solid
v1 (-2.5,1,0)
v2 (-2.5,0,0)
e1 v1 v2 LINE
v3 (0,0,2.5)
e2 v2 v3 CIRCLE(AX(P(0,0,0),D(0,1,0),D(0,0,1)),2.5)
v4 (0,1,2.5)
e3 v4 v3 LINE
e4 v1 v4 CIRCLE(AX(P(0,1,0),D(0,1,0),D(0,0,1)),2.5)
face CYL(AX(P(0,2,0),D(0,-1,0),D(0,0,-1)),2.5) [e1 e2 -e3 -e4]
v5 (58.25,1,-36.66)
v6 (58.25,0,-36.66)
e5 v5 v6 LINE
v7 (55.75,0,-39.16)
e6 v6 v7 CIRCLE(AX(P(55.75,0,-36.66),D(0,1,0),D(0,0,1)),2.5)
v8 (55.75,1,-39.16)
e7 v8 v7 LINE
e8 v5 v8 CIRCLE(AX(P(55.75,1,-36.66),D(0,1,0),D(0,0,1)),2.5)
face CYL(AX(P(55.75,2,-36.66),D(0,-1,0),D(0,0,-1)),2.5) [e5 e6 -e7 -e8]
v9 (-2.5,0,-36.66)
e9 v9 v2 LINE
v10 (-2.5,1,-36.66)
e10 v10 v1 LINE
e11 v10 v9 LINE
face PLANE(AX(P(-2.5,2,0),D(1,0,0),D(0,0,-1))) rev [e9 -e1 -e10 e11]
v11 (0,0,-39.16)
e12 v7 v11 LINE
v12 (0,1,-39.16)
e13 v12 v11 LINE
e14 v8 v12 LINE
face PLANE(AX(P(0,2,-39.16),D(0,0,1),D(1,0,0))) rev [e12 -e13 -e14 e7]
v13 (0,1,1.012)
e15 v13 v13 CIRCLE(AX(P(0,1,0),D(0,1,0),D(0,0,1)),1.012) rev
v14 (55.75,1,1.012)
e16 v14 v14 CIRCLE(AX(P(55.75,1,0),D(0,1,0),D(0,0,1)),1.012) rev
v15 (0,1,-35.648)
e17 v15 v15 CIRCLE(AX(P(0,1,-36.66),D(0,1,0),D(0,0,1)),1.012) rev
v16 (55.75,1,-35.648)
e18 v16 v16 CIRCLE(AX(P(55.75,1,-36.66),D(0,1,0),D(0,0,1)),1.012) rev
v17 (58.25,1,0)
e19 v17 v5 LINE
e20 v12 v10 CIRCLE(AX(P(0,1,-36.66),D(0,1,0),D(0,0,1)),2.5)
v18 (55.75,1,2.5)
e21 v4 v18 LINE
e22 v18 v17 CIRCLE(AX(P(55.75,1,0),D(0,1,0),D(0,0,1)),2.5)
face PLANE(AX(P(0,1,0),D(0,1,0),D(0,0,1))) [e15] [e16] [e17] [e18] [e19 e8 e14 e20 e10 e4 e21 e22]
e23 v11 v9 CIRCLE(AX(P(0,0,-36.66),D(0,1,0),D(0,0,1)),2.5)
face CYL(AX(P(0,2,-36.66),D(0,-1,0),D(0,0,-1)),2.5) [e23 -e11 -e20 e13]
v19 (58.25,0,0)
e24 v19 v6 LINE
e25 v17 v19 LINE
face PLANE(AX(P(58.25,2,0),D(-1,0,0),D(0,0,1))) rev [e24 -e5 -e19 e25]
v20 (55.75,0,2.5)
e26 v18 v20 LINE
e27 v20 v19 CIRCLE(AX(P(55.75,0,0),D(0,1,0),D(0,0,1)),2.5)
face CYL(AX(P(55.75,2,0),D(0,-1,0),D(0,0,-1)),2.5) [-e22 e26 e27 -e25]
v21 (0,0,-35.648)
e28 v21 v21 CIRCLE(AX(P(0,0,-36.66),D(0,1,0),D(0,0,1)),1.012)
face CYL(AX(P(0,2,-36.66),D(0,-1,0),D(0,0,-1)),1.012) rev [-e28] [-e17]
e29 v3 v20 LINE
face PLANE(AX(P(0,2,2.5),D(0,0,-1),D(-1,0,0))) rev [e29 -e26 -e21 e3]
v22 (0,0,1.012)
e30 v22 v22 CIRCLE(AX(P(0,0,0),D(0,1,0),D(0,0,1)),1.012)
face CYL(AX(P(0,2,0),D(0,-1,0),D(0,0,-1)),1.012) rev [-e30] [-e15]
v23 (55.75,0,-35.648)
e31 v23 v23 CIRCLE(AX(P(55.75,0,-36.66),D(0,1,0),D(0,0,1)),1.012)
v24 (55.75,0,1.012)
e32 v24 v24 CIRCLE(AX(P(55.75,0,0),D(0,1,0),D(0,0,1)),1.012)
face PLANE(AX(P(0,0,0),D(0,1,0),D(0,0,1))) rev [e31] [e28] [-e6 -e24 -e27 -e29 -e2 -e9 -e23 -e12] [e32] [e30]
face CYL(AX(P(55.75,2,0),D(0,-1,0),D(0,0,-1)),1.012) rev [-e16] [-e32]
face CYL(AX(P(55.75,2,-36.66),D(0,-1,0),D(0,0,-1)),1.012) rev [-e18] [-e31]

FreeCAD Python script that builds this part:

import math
import FreeCAD as App
import Part
import Sketcher
Q = App.Units.Quantity


def add_polygon(sketch, points):
    """Adds a closed chain of lines whose ends are joined by coincident constraints."""
    first, n = sketch.GeometryCount, len(points)
    for a, b in zip(points, points[1:] + points[:1]):
        sketch.addGeometry(Part.LineSegment(App.Vector(*a, 0), App.Vector(*b, 0)), False)
    for i in range(n):
        sketch.addConstraint(Sketcher.Constraint("Coincident", first + i, 2, first + (i + 1) % n, 1))

doc = App.newDocument("Part")
body = doc.addObject("PartDesign::Body", "Body")

# Sketch on XZ plane
sketch1 = body.newObject("Sketcher::SketchObject", "Sketch")
sketch1.AttachmentSupport = (doc.getObject("XZ_Plane"), [""])
sketch1.MapMode = "FlatFace"
sketch1.addGeometry(Part.LineSegment(App.Vector(58.25, 0, 0), App.Vector(58.25, -36.66, 0)), False)
sketch1.addGeometry(Part.ArcOfCircle(Part.Circle(App.Vector(55.75, -36.66, 0), App.Vector(0, 0, 1), 2.5), math.radians(0), math.radians(270)), False)
sketch1.addGeometry(Part.LineSegment(App.Vector(55.75, -39.16, 0), App.Vector(0, -39.16, 0)), False)
sketch1.addGeometry(Part.ArcOfCircle(Part.Circle(App.Vector(0, -36.66, 0), App.Vector(0, 0, 1), 2.5), math.radians(-90), math.radians(180)), False)
sketch1.addGeometry(Part.LineSegment(App.Vector(-2.5, -36.66, 0), App.Vector(-2.5, 0, 0)), False)
sketch1.addGeometry(Part.ArcOfCircle(Part.Circle(App.Vector(0, 0, 0), App.Vector(0, 0, 1), 2.5), math.radians(180), math.radians(450)), False)
sketch1.addGeometry(Part.LineSegment(App.Vector(0, 2.5, 0), App.Vector(55.75, 2.5, 0)), False)
sketch1.addGeometry(Part.ArcOfCircle(Part.Circle(App.Vector(55.75, 0, 0), App.Vector(0, 0, 1), 2.5), math.radians(90), math.radians(360)), False)
sketch1.addConstraint(Sketcher.Constraint("Tangent", 0, 2, 1, 1))
sketch1.addConstraint(Sketcher.Constraint("Tangent", 1, 2, 2, 1))
sketch1.addConstraint(Sketcher.Constraint("Tangent", 2, 2, 3, 1))
sketch1.addConstraint(Sketcher.Constraint("Tangent", 3, 2, 4, 1))
sketch1.addConstraint(Sketcher.Constraint("Tangent", 4, 2, 5, 1))
sketch1.addConstraint(Sketcher.Constraint("Tangent", 5, 2, 6, 1))
sketch1.addConstraint(Sketcher.Constraint("Tangent", 6, 2, 7, 1))
sketch1.addConstraint(Sketcher.Constraint("Tangent", 7, 2, 0, 1))
sketch1.addConstraint(Sketcher.Constraint("Vertical", 0))
sketch1.addConstraint(Sketcher.Constraint("Horizontal", 2))
sketch1.addConstraint(Sketcher.Constraint("Vertical", 4))
sketch1.addConstraint(Sketcher.Constraint("Horizontal", 6))
sketch1.addConstraint(Sketcher.Constraint("Coincident", 5, 3, -1, 1))
sketch1.addConstraint(Sketcher.Constraint("Equal", 1, 3))
sketch1.addConstraint(Sketcher.Constraint("Equal", 3, 5))
sketch1.addConstraint(Sketcher.Constraint("Equal", 5, 7))
sketch1.addConstraint(Sketcher.Constraint("Radius", 1, Q("2.5 mm")))
sketch1.addConstraint(Sketcher.Constraint("DistanceX", 2, 2, 2, 1, Q("55.75 mm")))
sketch1.addConstraint(Sketcher.Constraint("DistanceY", 0, 2, 0, 1, Q("36.66 mm")))
pad1 = body.newObject("PartDesign::Pad", "Pad")
pad1.Profile = sketch1
pad1.Length = 2
pad1.Reversed = True

# Sketch on XZ plane
sketch2 = body.newObject("Sketcher::SketchObject", "Sketch001")
sketch2.AttachmentSupport = (doc.getObject("XZ_Plane"), [""])
sketch2.MapMode = "FlatFace"
sketch2.addGeometry(Part.ArcOfCircle(Part.Circle(App.Vector(55.75, 0, 0), App.Vector(0, 0, 1), 2.5), math.radians(0), math.radians(90)), False)
sketch2.addGeometry(Part.ArcOfCircle(Part.Circle(App.Vector(55.75, 0, 0), App.Vector(0, 0, 1), 2.5), math.radians(-90), math.radians(0)), False)
sketch2.addGeometry(Part.ArcOfCircle(Part.Circle(App.Vector(55.75, 0, 0), App.Vector(0, 0, 1), 2.5), math.radians(180), math.radians(270)), False)
sketch2.addGeometry(Part.ArcOfCircle(Part.Circle(App.Vector(55.75, 0, 0), App.Vector(0, 0, 1), 2.5), math.radians(90), math.radians(180)), False)
sketch2.addGeometry(Part.ArcOfCircle(Part.Circle(App.Vector(55.75, 0, 0), App.Vector(0, 0, 1), 1.012), math.radians(0), math.radians(90)), False)
sketch2.addGeometry(Part.ArcOfCircle(Part.Circle(App.Vector(55.75, 0, 0), App.Vector(0, 0, 1), 1.012), math.radians(90), math.radians(180)), False)
sketch2.addGeometry(Part.ArcOfCircle(Part.Circle(App.Vector(55.75, 0, 0), App.Vector(0, 0, 1), 1.012), math.radians(180), math.radians(270)), False)
sketch2.addGeometry(Part.ArcOfCircle(Part.Circle(App.Vector(55.75, 0, 0), App.Vector(0, 0, 1), 1.012), math.radians(-90), math.radians(0)), False)
sketch2.addConstraint(Sketcher.Constraint("Tangent", 0, 1, 1, 2))
sketch2.addConstraint(Sketcher.Constraint("Tangent", 1, 1, 2, 2))
sketch2.addConstraint(Sketcher.Constraint("Tangent", 2, 1, 3, 2))
sketch2.addConstraint(Sketcher.Constraint("Tangent", 3, 1, 0, 2))
sketch2.addConstraint(Sketcher.Constraint("Tangent", 4, 2, 5, 1))
sketch2.addConstraint(Sketcher.Constraint("Tangent", 5, 2, 6, 1))
sketch2.addConstraint(Sketcher.Constraint("Tangent", 6, 2, 7, 1))
sketch2.addConstraint(Sketcher.Constraint("Tangent", 7, 2, 4, 1))
sketch2.addConstraint(Sketcher.Constraint("Coincident", 4, 3, 0, 3))
sketch2.addConstraint(Sketcher.Constraint("Equal", 0, 1))
sketch2.addConstraint(Sketcher.Constraint("Equal", 4, 5))
sketch2.addConstraint(Sketcher.Constraint("Symmetric", 1, 1, 3, 1, -1))
sketch2.addConstraint(Sketcher.Constraint("PointOnObject", 0, 1, -1))
sketch2.addConstraint(Sketcher.Constraint("PointOnObject", 2, 1, -1))
sketch2.addConstraint(Sketcher.Constraint("PointOnObject", 5, 2, -1))
sketch2.addConstraint(Sketcher.Constraint("PointOnObject", 7, 2, -1))
sketch2.addConstraint(Sketcher.Constraint("Vertical", 7, 3, 1, 1))
sketch2.addConstraint(Sketcher.Constraint("Vertical", 3, 1, 4, 2))
sketch2.addConstraint(Sketcher.Constraint("Vertical", 4, 2, 6, 2))
sketch2.addConstraint(Sketcher.Constraint("Radius", 0, Q("2.5 mm")))
sketch2.addConstraint(Sketcher.Constraint("Radius", 4, Q("1.012 mm")))
sketch2.addConstraint(Sketcher.Constraint("DistanceX", -1, 1, 0, 3, Q("55.75 mm")))
pad2 = body.newObject("PartDesign::Pad", "Pad001")
pad2.Profile = sketch2
pad2.Length = 2
pad2.Reversed = True

# Sketch on XZ plane
sketch3 = body.newObject("Sketcher::SketchObject", "Sketch002")
sketch3.AttachmentSupport = (doc.getObject("XZ_Plane"), [""])
sketch3.MapMode = "FlatFace"
sketch3.addGeometry(Part.ArcOfCircle(Part.Circle(App.Vector(0, 0, 0), App.Vector(0, 0, 1), 2.5), math.radians(90), math.radians(180)), False)
sketch3.addGeometry(Part.ArcOfCircle(Part.Circle(App.Vector(0, 0, 0), App.Vector(0, 0, 1), 2.5), math.radians(0), math.radians(90)), False)
sketch3.addGeometry(Part.ArcOfCircle(Part.Circle(App.Vector(0, 0, 0), App.Vector(0, 0, 1), 2.5), math.radians(-90), math.radians(0)), False)
sketch3.addGeometry(Part.ArcOfCircle(Part.Circle(App.Vector(0, 0, 0), App.Vector(0, 0, 1), 2.5), math.radians(180), math.radians(270)), False)
sketch3.addGeometry(Part.ArcOfCircle(Part.Circle(App.Vector(0, 0, 0), App.Vector(0, 0, 1), 1.012), math.radians(90), math.radians(180)), False)
sketch3.addGeometry(Part.ArcOfCircle(Part.Circle(App.Vector(0, 0, 0), App.Vector(0, 0, 1), 1.012), math.radians(180), math.radians(270)), False)
sketch3.addGeometry(Part.ArcOfCircle(Part.Circle(App.Vector(0, 0, 0), App.Vector(0, 0, 1), 1.012), math.radians(-90), math.radians(0)), False)
sketch3.addGeometry(Part.ArcOfCircle(Part.Circle(App.Vector(0, 0, 0), App.Vector(0, 0, 1), 1.012), math.radians(0), math.radians(90)), False)
sketch3.addGeometry(Part.ArcOfCircle(Part.Circle(App.Vector(0, -36.66, 0), App.Vector(0, 0, 1), 2.5), math.radians(90), math.radians(180)), False)
sketch3.addGeometry(Part.ArcOfCircle(Part.Circle(App.Vector(0, -36.66, 0), App.Vector(0, 0, 1), 2.5), math.radians(0), math.radians(90)), False)
sketch3.addGeometry(Part.ArcOfCircle(Part.Circle(App.Vector(0, -36.66, 0), App.Vector(0, 0, 1), 2.5), math.radians(-90), math.radians(0)), False)
sketch3.addGeometry(Part.ArcOfCircle(Part.Circle(App.Vector(0, -36.66, 0), App.Vector(0, 0, 1), 2.5), math.radians(180), math.radians(270)), False)
sketch3.addGeometry(Part.ArcOfCircle(Part.Circle(App.Vector(0, -36.66, 0), App.Vector(0, 0, 1), 1.012), math.radians(90), math.radians(180)), False)
sketch3.addGeometry(Part.ArcOfCircle(Part.Circle(App.Vector(0, -36.66, 0), App.Vector(0, 0, 1), 1.012), math.radians(180), math.radians(270)), False)
sketch3.addGeometry(Part.ArcOfCircle(Part.Circle(App.Vector(0, -36.66, 0), App.Vector(0, 0, 1), 1.012), math.radians(-90), math.radians(0)), False)
sketch3.addGeometry(Part.ArcOfCircle(Part.Circle(App.Vector(0, -36.66, 0), App.Vector(0, 0, 1), 1.012), math.radians(0), math.radians(90)), False)
sketch3.addGeometry(Part.ArcOfCircle(Part.Circle(App.Vector(55.75, -36.66, 0), App.Vector(0, 0, 1), 2.5), math.radians(-90), math.radians(0)), False)
sketch3.addGeometry(Part.ArcOfCircle(Part.Circle(App.Vector(55.75, -36.66, 0), App.Vector(0, 0, 1), 2.5), math.radians(180), math.radians(270)), False)
sketch3.addGeometry(Part.ArcOfCircle(Part.Circle(App.Vector(55.75, -36.66, 0), App.Vector(0, 0, 1), 2.5), math.radians(90), math.radians(180)), False)
sketch3.addGeometry(Part.ArcOfCircle(Part.Circle(App.Vector(55.75, -36.66, 0), App.Vector(0, 0, 1), 2.5), math.radians(0), math.radians(90)), False)
sketch3.addGeometry(Part.ArcOfCircle(Part.Circle(App.Vector(55.75, -36.66, 0), App.Vector(0, 0, 1), 1.012), math.radians(90), math.radians(180)), False)
sketch3.addGeometry(Part.ArcOfCircle(Part.Circle(App.Vector(55.75, -36.66, 0), App.Vector(0, 0, 1), 1.012), math.radians(180), math.radians(270)), False)
sketch3.addGeometry(Part.ArcOfCircle(Part.Circle(App.Vector(55.75, -36.66, 0), App.Vector(0, 0, 1), 1.012), math.radians(-90), math.radians(0)), False)
sketch3.addGeometry(Part.ArcOfCircle(Part.Circle(App.Vector(55.75, -36.66, 0), App.Vector(0, 0, 1), 1.012), math.radians(0), math.radians(90)), False)
sketch3.addConstraint(Sketcher.Constraint("Tangent", 0, 1, 1, 2))
sketch3.addConstraint(Sketcher.Constraint("Tangent", 1, 1, 2, 2))
sketch3.addConstraint(Sketcher.Constraint("Tangent", 2, 1, 3, 2))
sketch3.addConstraint(Sketcher.Constraint("Tangent", 3, 1, 0, 2))
sketch3.addConstraint(Sketcher.Constraint("Tangent", 4, 2, 5, 1))
sketch3.addConstraint(Sketcher.Constraint("Tangent", 5, 2, 6, 1))
sketch3.addConstraint(Sketcher.Constraint("Tangent", 6, 2, 7, 1))
sketch3.addConstraint(Sketcher.Constraint("Tangent", 7, 2, 4, 1))
sketch3.addConstraint(Sketcher.Constraint("Tangent", 8, 1, 9, 2))
sketch3.addConstraint(Sketcher.Constraint("Tangent", 9, 1, 10, 2))
sketch3.addConstraint(Sketcher.Constraint("Tangent", 10, 1, 11, 2))
sketch3.addConstraint(Sketcher.Constraint("Tangent", 11, 1, 8, 2))
sketch3.addConstraint(Sketcher.Constraint("Tangent", 12, 2, 13, 1))
sketch3.addConstraint(Sketcher.Constraint("Tangent", 13, 2, 14, 1))
sketch3.addConstraint(Sketcher.Constraint("Tangent", 14, 2, 15, 1))
sketch3.addConstraint(Sketcher.Constraint("Tangent", 15, 2, 12, 1))
sketch3.addConstraint(Sketcher.Constraint("Tangent", 16, 1, 17, 2))
sketch3.addConstraint(Sketcher.Constraint("Tangent", 17, 1, 18, 2))
sketch3.addConstraint(Sketcher.Constraint("Tangent", 18, 1, 19, 2))
sketch3.addConstraint(Sketcher.Constraint("Tangent", 19, 1, 16, 2))
sketch3.addConstraint(Sketcher.Constraint("Tangent", 20, 2, 21, 1))
sketch3.addConstraint(Sketcher.Constraint("Tangent", 21, 2, 22, 1))
sketch3.addConstraint(Sketcher.Constraint("Tangent", 22, 2, 23, 1))
sketch3.addConstraint(Sketcher.Constraint("Tangent", 23, 2, 20, 1))
sketch3.addConstraint(Sketcher.Constraint("Coincident", 0, 3, -1, 1))
sketch3.addConstraint(Sketcher.Constraint("Coincident", 4, 3, -1, 1))
sketch3.addConstraint(Sketcher.Constraint("Coincident", 12, 3, 8, 3))
sketch3.addConstraint(Sketcher.Constraint("Coincident", 20, 3, 16, 3))
sketch3.addConstraint(Sketcher.Constraint("Equal", 0, 1))
sketch3.addConstraint(Sketcher.Constraint("Equal", 4, 5))
sketch3.addConstraint(Sketcher.Constraint("Equal", 3, 8))
sketch3.addConstraint(Sketcher.Constraint("Equal", 8, 9))
sketch3.addConstraint(Sketcher.Constraint("Equal", 7, 12))
sketch3.addConstraint(Sketcher.Constraint("Equal", 12, 13))
sketch3.addConstraint(Sketcher.Constraint("Equal", 11, 16))
sketch3.addConstraint(Sketcher.Constraint("Equal", 16, 17))
sketch3.addConstraint(Sketcher.Constraint("Equal", 15, 20))
sketch3.addConstraint(Sketcher.Constraint("Equal", 20, 21))
sketch3.addConstraint(Sketcher.Constraint("Symmetric", 9, 1, 11, 1, -2))
sketch3.addConstraint(Sketcher.Constraint("PointOnObject", 0, 1, -2))
sketch3.addConstraint(Sketcher.Constraint("PointOnObject", 1, 1, -1))
sketch3.addConstraint(Sketcher.Constraint("PointOnObject", 2, 1, -2))
sketch3.addConstraint(Sketcher.Constraint("PointOnObject", 3, 1, -1))
sketch3.addConstraint(Sketcher.Constraint("PointOnObject", 4, 2, -1))
sketch3.addConstraint(Sketcher.Constraint("PointOnObject", 5, 2, -2))
sketch3.addConstraint(Sketcher.Constraint("PointOnObject", 6, 2, -1))
sketch3.addConstraint(Sketcher.Constraint("PointOnObject", 7, 2, -2))
sketch3.addConstraint(Sketcher.Constraint("PointOnObject", 8, 1, -2))
sketch3.addConstraint(Sketcher.Constraint("PointOnObject", 10, 1, -2))
sketch3.addConstraint(Sketcher.Constraint("PointOnObject", 13, 2, -2))
sketch3.addConstraint(Sketcher.Constraint("PointOnObject", 15, 2, -2))
sketch3.addConstraint(Sketcher.Constraint("Horizontal", 15, 3, 16, 3))
sketch3.addConstraint(Sketcher.Constraint("Horizontal", 23, 3, 9, 1))
sketch3.addConstraint(Sketcher.Constraint("Horizontal", 11, 1, 12, 2))
sketch3.addConstraint(Sketcher.Constraint("Horizontal", 12, 2, 14, 2))
sketch3.addConstraint(Sketcher.Constraint("Horizontal", 14, 2, 17, 1))
sketch3.addConstraint(Sketcher.Constraint("Horizontal", 17, 1, 19, 1))
sketch3.addConstraint(Sketcher.Constraint("Horizontal", 19, 1, 20, 2))
sketch3.addConstraint(Sketcher.Constraint("Horizontal", 20, 2, 22, 2))
sketch3.addConstraint(Sketcher.Constraint("Vertical", 23, 3, 16, 1))
sketch3.addConstraint(Sketcher.Constraint("Vertical", 16, 1, 18, 1))
sketch3.addConstraint(Sketcher.Constraint("Vertical", 18, 1, 21, 2))
sketch3.addConstraint(Sketcher.Constraint("Vertical", 21, 2, 23, 2))
sketch3.addConstraint(Sketcher.Constraint("Radius", 0, Q("2.5 mm")))
sketch3.addConstraint(Sketcher.Constraint("Radius", 4, Q("1.012 mm")))
sketch3.addConstraint(Sketcher.Constraint("DistanceY", 8, 3, -1, 1, Q("36.66 mm")))
sketch3.addConstraint(Sketcher.Constraint("DistanceX", -1, 1, 16, 3, Q("55.75 mm")))
pad3 = body.newObject("PartDesign::Pad", "Pad002")
pad3.Profile = sketch3
pad3.Length = 2
pad3.Reversed = True

# Sketch on XZ plane
sketch4 = body.newObject("Sketcher::SketchObject", "Sketch003")
sketch4.AttachmentSupport = (doc.getObject("XZ_Plane"), [""])
sketch4.MapMode = "FlatFace"
sketch4.AttachmentOffset = App.Placement(App.Vector(0, 0, -2), App.Rotation())
sketch4.addGeometry(Part.LineSegment(App.Vector(33.4358, -28.16, 0), App.Vector(33.925, -28.16, 0)), False)
sketch4.addGeometry(Part.LineSegment(App.Vector(33.925, -28.16, 0), App.Vector(33.925, -30.16, 0)), False)
sketch4.addGeometry(Part.LineSegment(App.Vector(33.925, -30.16, 0), App.Vector(33.4358, -30.16, 0)), False)
sketch4.addGeometry(Part.ArcOfCircle(Part.Circle(App.Vector(27.875, -29.16, 0), App.Vector(0, 0, 1), 5.65), math.radians(-169.805448), math.radians(-10.194552)), False)
sketch4.addGeometry(Part.LineSegment(App.Vector(22.3142, -30.16, 0), App.Vector(21.825, -30.16, 0)), False)
sketch4.addGeometry(Part.LineSegment(App.Vector(21.825, -30.16, 0), App.Vector(21.825, -28.16, 0)), False)
sketch4.addGeometry(Part.LineSegment(App.Vector(21.825, -28.16, 0), App.Vector(22.3142, -28.16, 0)), False)
sketch4.addGeometry(Part.ArcOfCircle(Part.Circle(App.Vector(27.875, -29.16, 0), App.Vector(0, 0, 1), 5.65), math.radians(10.194552), math.radians(169.805448)), False)
sketch4.addConstraint(Sketcher.Constraint("Coincident", 0, 2, 1, 1))
sketch4.addConstraint(Sketcher.Constraint("Coincident", 1, 2, 2, 1))
sketch4.addConstraint(Sketcher.Constraint("Coincident", 2, 2, 3, 2))
sketch4.addConstraint(Sketcher.Constraint("Coincident", 3, 1, 4, 1))
sketch4.addConstraint(Sketcher.Constraint("Coincident", 4, 2, 5, 1))
sketch4.addConstraint(Sketcher.Constraint("Coincident", 5, 2, 6, 1))
sketch4.addConstraint(Sketcher.Constraint("Coincident", 6, 2, 7, 2))
sketch4.addConstraint(Sketcher.Constraint("Coincident", 7, 1, 0, 1))
sketch4.addConstraint(Sketcher.Constraint("Horizontal", 0))
sketch4.addConstraint(Sketcher.Constraint("Vertical", 1))
sketch4.addConstraint(Sketcher.Constraint("Horizontal", 2))
sketch4.addConstraint(Sketcher.Constraint("Horizontal", 4))
sketch4.addConstraint(Sketcher.Constraint("Vertical", 5))
sketch4.addConstraint(Sketcher.Constraint("Horizontal", 6))
sketch4.addConstraint(Sketcher.Constraint("Coincident", 7, 3, 3, 3))
sketch4.addConstraint(Sketcher.Constraint("Equal", 3, 7))
sketch4.addConstraint(Sketcher.Constraint("Horizontal", 2, 2, 3, 1))
sketch4.addConstraint(Sketcher.Constraint("Horizontal", 0, 2, 5, 2))
sketch4.addConstraint(Sketcher.Constraint("Vertical", 3, 1, 6, 2))
sketch4.addConstraint(Sketcher.Constraint("Equal", 2, 4))
sketch4.addConstraint(Sketcher.Constraint("DistanceY", 1, 2, 1, 1, Q("2 mm")))
sketch4.addConstraint(Sketcher.Constraint("Radius", 3, Q("5.65 mm")))
sketch4.addConstraint(Sketcher.Constraint("DistanceX", 4, 2, 1, 2, Q("12.1 mm")))
sketch4.addConstraint(Sketcher.Constraint("DistanceY", 3, 3, -1, 1, Q("29.16 mm")))
sketch4.addConstraint(Sketcher.Constraint("DistanceX", -1, 1, 3, 3, Q("27.875 mm")))
pocket1 = body.newObject("PartDesign::Pocket", "Pocket")
pocket1.Profile = sketch4
pocket1.Length = 10
pocket1.Reversed = True

# Sketch on XZ plane
sketch5 = body.newObject("Sketcher::SketchObject", "Sketch004")
sketch5.AttachmentSupport = (doc.getObject("XZ_Plane"), [""])
sketch5.MapMode = "FlatFace"
sketch5.AttachmentOffset = App.Placement(App.Vector(0, 0, -2), App.Rotation())
add_polygon(sketch5, [(58.25, 2.5), (58.25, -39.16), (-2.5, -39.16), (-2.5, 2.5)])  # lines 0-3
sketch5.addConstraint(Sketcher.Constraint("Vertical", 0))
sketch5.addConstraint(Sketcher.Constraint("Horizontal", 1))
sketch5.addConstraint(Sketcher.Constraint("Vertical", 2))
sketch5.addConstraint(Sketcher.Constraint("Horizontal", 3))
sketch5.addConstraint(Sketcher.Constraint("DistanceX", 1, 2, 1, 1, Q("60.75 mm")))
sketch5.addConstraint(Sketcher.Constraint("DistanceY", 0, 2, 0, 1, Q("41.66 mm")))
sketch5.addConstraint(Sketcher.Constraint("DistanceX", 1, 2, -1, 1, Q("2.5 mm")))
sketch5.addConstraint(Sketcher.Constraint("DistanceY", -1, 1, 2, 2, Q("2.5 mm")))
pocket2 = body.newObject("PartDesign::Pocket", "Pocket001")
pocket2.Profile = sketch5
pocket2.Length = 1
pocket2.Reversed = True

# Sketch on XZ plane
sketch6 = body.newObject("Sketcher::SketchObject", "Sketch005")
sketch6.AttachmentSupport = (doc.getObject("XZ_Plane"), [""])
sketch6.MapMode = "FlatFace"
sketch6.AttachmentOffset = App.Placement(App.Vector(0, 0, -1), App.Rotation())
add_polygon(sketch6, [(17.414174, -36.180987), (17.414174, -21.246946), (39.516555, -21.246946), (39.516555, -36.180987)])  # lines 0-3
sketch6.addConstraint(Sketcher.Constraint("Vertical", 0))
sketch6.addConstraint(Sketcher.Constraint("Horizontal", 1))
sketch6.addConstraint(Sketcher.Constraint("Vertical", 2))
sketch6.addConstraint(Sketcher.Constraint("Horizontal", 3))
sketch6.addConstraint(Sketcher.Constraint("DistanceX", 1, 1, 1, 2, Q("22.102381 mm")))
sketch6.addConstraint(Sketcher.Constraint("DistanceY", 0, 1, 0, 2, Q("14.934041 mm")))
sketch6.addConstraint(Sketcher.Constraint("DistanceX", -1, 1, 0, 2, Q("17.414174 mm")))
sketch6.addConstraint(Sketcher.Constraint("DistanceY", 0, 2, -1, 1, Q("21.246946 mm")))
pad4 = body.newObject("PartDesign::Pad", "Pad003")
pad4.Profile = sketch6
pad4.Length = 1

doc.recompute()
